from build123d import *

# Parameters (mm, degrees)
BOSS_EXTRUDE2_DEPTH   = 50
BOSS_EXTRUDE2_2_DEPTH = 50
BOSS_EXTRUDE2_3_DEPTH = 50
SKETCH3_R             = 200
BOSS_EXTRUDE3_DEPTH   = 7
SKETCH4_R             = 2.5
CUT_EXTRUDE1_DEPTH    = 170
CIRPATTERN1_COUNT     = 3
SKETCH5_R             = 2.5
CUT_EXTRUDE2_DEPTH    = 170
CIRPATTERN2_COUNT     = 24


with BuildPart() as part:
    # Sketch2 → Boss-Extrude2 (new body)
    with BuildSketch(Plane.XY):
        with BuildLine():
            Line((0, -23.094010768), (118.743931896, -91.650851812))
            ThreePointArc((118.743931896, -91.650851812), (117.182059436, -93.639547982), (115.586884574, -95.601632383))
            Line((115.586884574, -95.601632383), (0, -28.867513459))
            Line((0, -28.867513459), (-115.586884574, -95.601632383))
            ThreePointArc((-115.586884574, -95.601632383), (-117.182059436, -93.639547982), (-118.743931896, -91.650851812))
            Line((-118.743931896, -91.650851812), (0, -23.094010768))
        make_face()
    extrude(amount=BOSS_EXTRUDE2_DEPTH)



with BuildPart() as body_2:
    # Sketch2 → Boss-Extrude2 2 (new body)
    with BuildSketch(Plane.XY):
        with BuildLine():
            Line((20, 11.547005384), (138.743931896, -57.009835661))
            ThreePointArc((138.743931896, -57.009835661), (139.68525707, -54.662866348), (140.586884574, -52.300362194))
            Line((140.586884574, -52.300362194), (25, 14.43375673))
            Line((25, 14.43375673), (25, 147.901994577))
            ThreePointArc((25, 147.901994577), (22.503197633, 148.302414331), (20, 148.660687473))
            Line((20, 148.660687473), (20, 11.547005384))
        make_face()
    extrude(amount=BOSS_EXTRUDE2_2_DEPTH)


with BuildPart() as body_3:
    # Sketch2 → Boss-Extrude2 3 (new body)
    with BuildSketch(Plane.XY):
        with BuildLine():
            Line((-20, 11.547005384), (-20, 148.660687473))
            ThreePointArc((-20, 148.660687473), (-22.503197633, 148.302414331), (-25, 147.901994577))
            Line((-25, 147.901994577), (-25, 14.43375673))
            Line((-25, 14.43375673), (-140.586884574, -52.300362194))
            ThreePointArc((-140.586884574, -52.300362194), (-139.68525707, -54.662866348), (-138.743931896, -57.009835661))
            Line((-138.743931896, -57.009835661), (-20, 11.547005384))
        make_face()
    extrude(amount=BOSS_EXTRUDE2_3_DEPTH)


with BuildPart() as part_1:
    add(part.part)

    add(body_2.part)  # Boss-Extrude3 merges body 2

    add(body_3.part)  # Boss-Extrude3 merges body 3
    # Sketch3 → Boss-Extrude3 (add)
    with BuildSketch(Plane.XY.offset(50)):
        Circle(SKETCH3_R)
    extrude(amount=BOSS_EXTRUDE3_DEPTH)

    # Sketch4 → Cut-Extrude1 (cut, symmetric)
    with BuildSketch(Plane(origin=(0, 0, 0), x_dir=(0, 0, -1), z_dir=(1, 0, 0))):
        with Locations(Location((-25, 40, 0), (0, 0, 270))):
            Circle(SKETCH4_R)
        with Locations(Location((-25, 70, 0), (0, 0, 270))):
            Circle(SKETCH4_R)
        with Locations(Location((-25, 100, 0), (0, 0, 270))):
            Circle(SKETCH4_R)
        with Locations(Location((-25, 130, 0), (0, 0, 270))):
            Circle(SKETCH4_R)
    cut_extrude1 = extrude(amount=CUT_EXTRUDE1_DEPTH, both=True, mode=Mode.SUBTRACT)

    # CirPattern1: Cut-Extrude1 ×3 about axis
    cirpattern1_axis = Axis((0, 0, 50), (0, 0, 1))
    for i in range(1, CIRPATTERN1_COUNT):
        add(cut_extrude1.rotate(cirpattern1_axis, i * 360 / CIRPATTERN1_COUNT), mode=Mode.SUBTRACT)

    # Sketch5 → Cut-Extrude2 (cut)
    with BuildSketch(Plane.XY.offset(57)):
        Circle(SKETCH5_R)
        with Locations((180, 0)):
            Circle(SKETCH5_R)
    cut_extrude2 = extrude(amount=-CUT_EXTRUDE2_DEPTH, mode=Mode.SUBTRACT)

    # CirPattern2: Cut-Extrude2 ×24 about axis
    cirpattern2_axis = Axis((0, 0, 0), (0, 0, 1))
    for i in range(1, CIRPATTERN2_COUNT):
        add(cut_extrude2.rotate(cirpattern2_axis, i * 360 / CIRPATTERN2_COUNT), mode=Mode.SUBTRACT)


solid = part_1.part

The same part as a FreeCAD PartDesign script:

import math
import FreeCAD as App
import Part
import Sketcher
from FreeCAD import Vector
Q = App.Units.Quantity

doc = App.newDocument("Part")
params = doc.addObject("Spreadsheet::Sheet", "Params")
for row, (alias, value) in enumerate([
    ("sketch1_radius", "149.999999 mm"),
    ("pad1_length", "50 mm"),
    ("pad2_length", "50 mm"),
    ("pad3_length", "50 mm"),
    ("sketch4_diameter", "400 mm"),
    ("pad4_length", "7 mm"),
    ("sketch5_diameter", "5 mm"),
    ("pocket1_length", "340 mm"),
    ("sketch6_diameter", "5 mm"),
    ("pocket2_length", "170 mm"),
], start=1):
    params.set(f"A{row}", alias)
    params.set(f"B{row}", "=" + value)
    params.setAlias(f"B{row}", alias)

body = doc.addObject("PartDesign::Body", "Body")

# Sketch on XY plane
sketch1 = body.newObject("Sketcher::SketchObject", "Sketch")
sketch1.AttachmentSupport = (doc.getObject("XY_Plane"), [""])
sketch1.MapMode = "FlatFace"
sketch1.addGeometry([
    Part.LineSegment(Vector(119, -92, 0), Vector(0, -23, 0)),  # 0
    Part.LineSegment(Vector(0, -23, 0), Vector(-119, -92, 0)),  # 1
    Part.ArcOfCircle(Part.Circle(Vector(0, 0, 0), Vector(0, 0, 1), 150), math.radians(-142.34), math.radians(-140.41)),  # 2
    Part.LineSegment(Vector(-116, -96, 0), Vector(0, -29, 0)),  # 3
    Part.LineSegment(Vector(0, -29, 0), Vector(116, -96, 0)),  # 4
    Part.ArcOfCircle(Part.Circle(Vector(0, 0, 0), Vector(0, 0, 1), 150), math.radians(-39.59), math.radians(-37.66)),  # 5
], False)
sketch1.addConstraint([
    Sketcher.Constraint("Coincident", 0, 2, 1, 1),
    Sketcher.Constraint("Coincident", 1, 2, 2, 1),
    Sketcher.Constraint("Coincident", 2, 2, 3, 1),
    Sketcher.Constraint("Coincident", 3, 2, 4, 1),
    Sketcher.Constraint("Coincident", 4, 2, 5, 1),
    Sketcher.Constraint("Coincident", 5, 2, 0, 1),
    Sketcher.Constraint("Coincident", 2, 3, -1, 1),
    Sketcher.Constraint("Coincident", 5, 3, -1, 1),
    Sketcher.Constraint("Equal", 2, 5),
    Sketcher.Constraint("PointOnObject", 0, 2, -2),
    Sketcher.Constraint("PointOnObject", 3, 2, -2),
    Sketcher.Constraint("Parallel", 1, 3),
    Sketcher.Constraint("Parallel", 0, 4),
    Sketcher.Constraint("Horizontal", 2, 2, 4, 2),
    Sketcher.Constraint("Radius", 2, Q("149.999999 mm")),
    Sketcher.Constraint("Angle", 0, Q("150 deg")),
    Sketcher.Constraint("DistanceY", 0, 2, -1, 1, Q("23.094011 mm")),
    Sketcher.Constraint("DistanceY", 2, 2, 1, 2, Q("3.950781 mm")),
])
sketch1.setExpression("Constraints[14]", "Params.sketch1_radius")
pad1 = body.newObject("PartDesign::Pad", "Pad")
pad1.Profile = sketch1
pad1.setExpression("Length", "Params.pad1_length")
body2 = doc.addObject("PartDesign::Body", "Body001")

# Sketch on XY plane
sketch2 = body2.newObject("Sketcher::SketchObject", "Sketch001")
sketch2.AttachmentSupport = (doc.getObject("XY_Plane001"), [""])
sketch2.MapMode = "FlatFace"
sketch2.addGeometry([
    Part.LineSegment(Vector(20, 12, 0), Vector(139, -57, 0)),  # 0
    Part.ArcOfCircle(Part.Circle(Vector(0, 0, 0), Vector(0, 0, 1), 150), math.radians(-22.34), math.radians(-20.41)),  # 1
    Part.LineSegment(Vector(141, -52, 0), Vector(25, 14, 0)),  # 2
    Part.LineSegment(Vector(25, 14, 0), Vector(25, 148, 0)),  # 3
    Part.ArcOfCircle(Part.Circle(Vector(0, 0, 0), Vector(0, 0, 1), 150), math.radians(80.41), math.radians(82.34)),  # 4
    Part.LineSegment(Vector(20, 149, 0), Vector(20, 12, 0)),  # 5
], False)
sketch2.addConstraint([
    Sketcher.Constraint("Coincident", 0, 2, 1, 1),
    Sketcher.Constraint("Coincident", 1, 2, 2, 1),
    Sketcher.Constraint("Coincident", 2, 2, 3, 1),
    Sketcher.Constraint("Coincident", 3, 2, 4, 1),
    Sketcher.Constraint("Coincident", 4, 2, 5, 1),
    Sketcher.Constraint("Coincident", 5, 2, 0, 1),
    Sketcher.Constraint("Vertical", 3),
    Sketcher.Constraint("Vertical", 5),
    Sketcher.Constraint("Coincident", 1, 3, -1, 1),
    Sketcher.Constraint("Coincident", 4, 3, -1, 1),
    Sketcher.Constraint("Equal", 1, 4),
    Sketcher.Constraint("Parallel", 0, 2),
    Sketcher.Constraint("Angle", 0, Q("-30 deg")),
    Sketcher.Constraint("DistanceX", -1, 1, 2, 2, Q("25 mm")),
    Sketcher.Constraint("DistanceX", -1, 1, 4, 2, Q("20 mm")),
    Sketcher.Constraint("Radius", 1, Q("149.999997 mm")),
    Sketcher.Constraint("DistanceY", 4, 3, 5, 2, Q("11.547 mm")),
    Sketcher.Constraint("DistanceY", 3, 1, 3, 2, Q("133.468238 mm")),
])
pad2 = body2.newObject("PartDesign::Pad", "Pad001")
pad2.Profile = sketch2
pad2.setExpression("Length", "Params.pad2_length")
body3 = doc.addObject("PartDesign::Body", "Body002")

# Sketch on XY plane
sketch3 = body3.newObject("Sketcher::SketchObject", "Sketch002")
sketch3.AttachmentSupport = (doc.getObject("XY_Plane002"), [""])
sketch3.MapMode = "FlatFace"
sketch3.addGeometry([
    Part.LineSegment(Vector(-20, 12, 0), Vector(-20, 149, 0)),  # 0
    Part.ArcOfCircle(Part.Circle(Vector(0, 0, 0), Vector(0, 0, 1), 150), math.radians(97.66), math.radians(99.59)),  # 1
    Part.LineSegment(Vector(-25, 148, 0), Vector(-25, 14, 0)),  # 2
    Part.LineSegment(Vector(-25, 14, 0), Vector(-141, -52, 0)),  # 3
    Part.ArcOfCircle(Part.Circle(Vector(0, 0, 0), Vector(0, 0, 1), 150), math.radians(-159.59), math.radians(-157.66)),  # 4
    Part.LineSegment(Vector(-139, -57, 0), Vector(-20, 12, 0)),  # 5
], False)
sketch3.addConstraint([
    Sketcher.Constraint("Coincident", 0, 2, 1, 1),
    Sketcher.Constraint("Coincident", 1, 2, 2, 1),
    Sketcher.Constraint("Coincident", 2, 2, 3, 1),
    Sketcher.Constraint("Coincident", 3, 2, 4, 1),
    Sketcher.Constraint("Coincident", 4, 2, 5, 1),
    Sketcher.Constraint("Coincident", 5, 2, 0, 1),
    Sketcher.Constraint("Vertical", 0),
    Sketcher.Constraint("Vertical", 2),
    Sketcher.Constraint("Coincident", 1, 3, -1, 1),
    Sketcher.Constraint("Coincident", 4, 3, -1, 1),
    Sketcher.Constraint("Equal", 1, 4),
    Sketcher.Constraint("Parallel", 3, 5),
    Sketcher.Constraint("Angle", 3, Q("-150 deg")),
    Sketcher.Constraint("DistanceX", 0, 2, -1, 1, Q("20 mm")),
    Sketcher.Constraint("DistanceX", 1, 2, -1, 1, Q("25 mm")),
    Sketcher.Constraint("Radius", 1, Q("149.999995 mm")),
    Sketcher.Constraint("DistanceY", 1, 3, 5, 2, Q("11.547 mm")),
    Sketcher.Constraint("DistanceY", 2, 2, 2, 1, Q("133.468238 mm")),
])
pad3 = body3.newObject("PartDesign::Pad", "Pad002")
pad3.Profile = sketch3
pad3.setExpression("Length", "Params.pad3_length")
body.AllowCompound = True
doc.recompute()

boolean = body.newObject("PartDesign::Boolean", "Boolean")
boolean.Type = "Fuse"
boolean.addObjects([body2])
doc.recompute()

boolean2 = body.newObject("PartDesign::Boolean", "Boolean001")
boolean2.Type = "Fuse"
boolean2.addObjects([body3])

# Sketch on XY plane
sketch4 = body.newObject("Sketcher::SketchObject", "Sketch003")
sketch4.AttachmentSupport = (doc.getObject("XY_Plane"), [""])
sketch4.MapMode = "FlatFace"
sketch4.AttachmentOffset = App.Placement(Vector(0, 0, 50), App.Rotation())
sketch4.addGeometry(Part.Circle(Vector(0, 0, 0), Vector(0, 0, 1), 200), False)
sketch4.addConstraint([
    Sketcher.Constraint("Coincident", 0, 3, -1, 1),
    Sketcher.Constraint("Diameter", 0, Q("400 mm")),
])
sketch4.setExpression("Constraints[1]", "Params.sketch4_diameter")
pad4 = body.newObject("PartDesign::Pad", "Pad003")
pad4.Profile = sketch4
pad4.setExpression("Length", "Params.pad4_length")

# Sketch on YZ plane
sketch5 = body.newObject("Sketcher::SketchObject", "Sketch004")
sketch5.AttachmentSupport = (doc.getObject("YZ_Plane"), [""])
sketch5.MapMode = "FlatFace"
sketch5.addGeometry([
    Part.Circle(Vector(40, 25, 0), Vector(0, 0, 1), 2.5),
    Part.Circle(Vector(70, 25, 0), Vector(0, 0, 1), 2.5),
    Part.Circle(Vector(100, 25, 0), Vector(0, 0, 1), 2.5),
    Part.Circle(Vector(130, 25, 0), Vector(0, 0, 1), 2.5),
], False)
sketch5.addConstraint([
    Sketcher.Constraint("Equal", 0, 1),
    Sketcher.Constraint("Equal", 1, 2),
    Sketcher.Constraint("Equal", 2, 3),
    Sketcher.Constraint("Horizontal", 0, 3, 1, 3),
    Sketcher.Constraint("Horizontal", 1, 3, 2, 3),
    Sketcher.Constraint("Horizontal", 2, 3, 3, 3),
    Sketcher.Constraint("Diameter", 0, Q("5 mm")),
    Sketcher.Constraint("DistanceX", -1, 1, 0, 3, Q("40 mm")),
    Sketcher.Constraint("DistanceY", -1, 1, 0, 3, Q("25 mm")),
    Sketcher.Constraint("DistanceX", -1, 1, 1, 3, Q("70 mm")),
    Sketcher.Constraint("DistanceX", -1, 1, 2, 3, Q("100 mm")),
    Sketcher.Constraint("DistanceX", -1, 1, 3, 3, Q("130 mm")),
])
sketch5.setExpression("Constraints[6]", "Params.sketch5_diameter")
pocket1 = body.newObject("PartDesign::Pocket", "Pocket")
pocket1.Profile = sketch5
pocket1.setExpression("Length", "Params.pocket1_length")
pocket1.Midplane = True
doc.recompute()

polarpattern = body.newObject("PartDesign::PolarPattern", "PolarPattern")
polarpattern.Originals = [pocket1]
polarpattern.Axis = (doc.getObject("Z_Axis"), [""])
polarpattern.Angle = 360
polarpattern.Occurrences = 3
body.Tip = polarpattern

# Sketch on XY plane
sketch6 = body.newObject("Sketcher::SketchObject", "Sketch005")
sketch6.AttachmentSupport = (doc.getObject("XY_Plane"), [""])
sketch6.MapMode = "FlatFace"
sketch6.AttachmentOffset = App.Placement(Vector(0, 0, 57), App.Rotation())
sketch6.addGeometry([
    Part.Circle(Vector(0, 0, 0), Vector(0, 0, 1), 2.5),
    Part.Circle(Vector(180, 0, 0), Vector(0, 0, 1), 2.5),
], False)
sketch6.addConstraint([
    Sketcher.Constraint("Coincident", 0, 3, -1, 1),
    Sketcher.Constraint("Equal", 0, 1),
    Sketcher.Constraint("PointOnObject", 1, 3, -1),
    Sketcher.Constraint("Diameter", 0, Q("5 mm")),
    Sketcher.Constraint("DistanceX", -1, 1, 1, 3, Q("180 mm")),
])
sketch6.setExpression("Constraints[3]", "Params.sketch6_diameter")
pocket2 = body.newObject("PartDesign::Pocket", "Pocket001")
pocket2.Profile = sketch6
pocket2.setExpression("Length", "Params.pocket2_length")
doc.recompute()

polarpattern2 = body.newObject("PartDesign::PolarPattern", "PolarPattern001")
polarpattern2.Originals = [pocket2]
polarpattern2.Axis = (doc.getObject("Z_Axis"), [""])
polarpattern2.Angle = 360
polarpattern2.Occurrences = 24
body.Tip = polarpattern2

doc.recompute()
